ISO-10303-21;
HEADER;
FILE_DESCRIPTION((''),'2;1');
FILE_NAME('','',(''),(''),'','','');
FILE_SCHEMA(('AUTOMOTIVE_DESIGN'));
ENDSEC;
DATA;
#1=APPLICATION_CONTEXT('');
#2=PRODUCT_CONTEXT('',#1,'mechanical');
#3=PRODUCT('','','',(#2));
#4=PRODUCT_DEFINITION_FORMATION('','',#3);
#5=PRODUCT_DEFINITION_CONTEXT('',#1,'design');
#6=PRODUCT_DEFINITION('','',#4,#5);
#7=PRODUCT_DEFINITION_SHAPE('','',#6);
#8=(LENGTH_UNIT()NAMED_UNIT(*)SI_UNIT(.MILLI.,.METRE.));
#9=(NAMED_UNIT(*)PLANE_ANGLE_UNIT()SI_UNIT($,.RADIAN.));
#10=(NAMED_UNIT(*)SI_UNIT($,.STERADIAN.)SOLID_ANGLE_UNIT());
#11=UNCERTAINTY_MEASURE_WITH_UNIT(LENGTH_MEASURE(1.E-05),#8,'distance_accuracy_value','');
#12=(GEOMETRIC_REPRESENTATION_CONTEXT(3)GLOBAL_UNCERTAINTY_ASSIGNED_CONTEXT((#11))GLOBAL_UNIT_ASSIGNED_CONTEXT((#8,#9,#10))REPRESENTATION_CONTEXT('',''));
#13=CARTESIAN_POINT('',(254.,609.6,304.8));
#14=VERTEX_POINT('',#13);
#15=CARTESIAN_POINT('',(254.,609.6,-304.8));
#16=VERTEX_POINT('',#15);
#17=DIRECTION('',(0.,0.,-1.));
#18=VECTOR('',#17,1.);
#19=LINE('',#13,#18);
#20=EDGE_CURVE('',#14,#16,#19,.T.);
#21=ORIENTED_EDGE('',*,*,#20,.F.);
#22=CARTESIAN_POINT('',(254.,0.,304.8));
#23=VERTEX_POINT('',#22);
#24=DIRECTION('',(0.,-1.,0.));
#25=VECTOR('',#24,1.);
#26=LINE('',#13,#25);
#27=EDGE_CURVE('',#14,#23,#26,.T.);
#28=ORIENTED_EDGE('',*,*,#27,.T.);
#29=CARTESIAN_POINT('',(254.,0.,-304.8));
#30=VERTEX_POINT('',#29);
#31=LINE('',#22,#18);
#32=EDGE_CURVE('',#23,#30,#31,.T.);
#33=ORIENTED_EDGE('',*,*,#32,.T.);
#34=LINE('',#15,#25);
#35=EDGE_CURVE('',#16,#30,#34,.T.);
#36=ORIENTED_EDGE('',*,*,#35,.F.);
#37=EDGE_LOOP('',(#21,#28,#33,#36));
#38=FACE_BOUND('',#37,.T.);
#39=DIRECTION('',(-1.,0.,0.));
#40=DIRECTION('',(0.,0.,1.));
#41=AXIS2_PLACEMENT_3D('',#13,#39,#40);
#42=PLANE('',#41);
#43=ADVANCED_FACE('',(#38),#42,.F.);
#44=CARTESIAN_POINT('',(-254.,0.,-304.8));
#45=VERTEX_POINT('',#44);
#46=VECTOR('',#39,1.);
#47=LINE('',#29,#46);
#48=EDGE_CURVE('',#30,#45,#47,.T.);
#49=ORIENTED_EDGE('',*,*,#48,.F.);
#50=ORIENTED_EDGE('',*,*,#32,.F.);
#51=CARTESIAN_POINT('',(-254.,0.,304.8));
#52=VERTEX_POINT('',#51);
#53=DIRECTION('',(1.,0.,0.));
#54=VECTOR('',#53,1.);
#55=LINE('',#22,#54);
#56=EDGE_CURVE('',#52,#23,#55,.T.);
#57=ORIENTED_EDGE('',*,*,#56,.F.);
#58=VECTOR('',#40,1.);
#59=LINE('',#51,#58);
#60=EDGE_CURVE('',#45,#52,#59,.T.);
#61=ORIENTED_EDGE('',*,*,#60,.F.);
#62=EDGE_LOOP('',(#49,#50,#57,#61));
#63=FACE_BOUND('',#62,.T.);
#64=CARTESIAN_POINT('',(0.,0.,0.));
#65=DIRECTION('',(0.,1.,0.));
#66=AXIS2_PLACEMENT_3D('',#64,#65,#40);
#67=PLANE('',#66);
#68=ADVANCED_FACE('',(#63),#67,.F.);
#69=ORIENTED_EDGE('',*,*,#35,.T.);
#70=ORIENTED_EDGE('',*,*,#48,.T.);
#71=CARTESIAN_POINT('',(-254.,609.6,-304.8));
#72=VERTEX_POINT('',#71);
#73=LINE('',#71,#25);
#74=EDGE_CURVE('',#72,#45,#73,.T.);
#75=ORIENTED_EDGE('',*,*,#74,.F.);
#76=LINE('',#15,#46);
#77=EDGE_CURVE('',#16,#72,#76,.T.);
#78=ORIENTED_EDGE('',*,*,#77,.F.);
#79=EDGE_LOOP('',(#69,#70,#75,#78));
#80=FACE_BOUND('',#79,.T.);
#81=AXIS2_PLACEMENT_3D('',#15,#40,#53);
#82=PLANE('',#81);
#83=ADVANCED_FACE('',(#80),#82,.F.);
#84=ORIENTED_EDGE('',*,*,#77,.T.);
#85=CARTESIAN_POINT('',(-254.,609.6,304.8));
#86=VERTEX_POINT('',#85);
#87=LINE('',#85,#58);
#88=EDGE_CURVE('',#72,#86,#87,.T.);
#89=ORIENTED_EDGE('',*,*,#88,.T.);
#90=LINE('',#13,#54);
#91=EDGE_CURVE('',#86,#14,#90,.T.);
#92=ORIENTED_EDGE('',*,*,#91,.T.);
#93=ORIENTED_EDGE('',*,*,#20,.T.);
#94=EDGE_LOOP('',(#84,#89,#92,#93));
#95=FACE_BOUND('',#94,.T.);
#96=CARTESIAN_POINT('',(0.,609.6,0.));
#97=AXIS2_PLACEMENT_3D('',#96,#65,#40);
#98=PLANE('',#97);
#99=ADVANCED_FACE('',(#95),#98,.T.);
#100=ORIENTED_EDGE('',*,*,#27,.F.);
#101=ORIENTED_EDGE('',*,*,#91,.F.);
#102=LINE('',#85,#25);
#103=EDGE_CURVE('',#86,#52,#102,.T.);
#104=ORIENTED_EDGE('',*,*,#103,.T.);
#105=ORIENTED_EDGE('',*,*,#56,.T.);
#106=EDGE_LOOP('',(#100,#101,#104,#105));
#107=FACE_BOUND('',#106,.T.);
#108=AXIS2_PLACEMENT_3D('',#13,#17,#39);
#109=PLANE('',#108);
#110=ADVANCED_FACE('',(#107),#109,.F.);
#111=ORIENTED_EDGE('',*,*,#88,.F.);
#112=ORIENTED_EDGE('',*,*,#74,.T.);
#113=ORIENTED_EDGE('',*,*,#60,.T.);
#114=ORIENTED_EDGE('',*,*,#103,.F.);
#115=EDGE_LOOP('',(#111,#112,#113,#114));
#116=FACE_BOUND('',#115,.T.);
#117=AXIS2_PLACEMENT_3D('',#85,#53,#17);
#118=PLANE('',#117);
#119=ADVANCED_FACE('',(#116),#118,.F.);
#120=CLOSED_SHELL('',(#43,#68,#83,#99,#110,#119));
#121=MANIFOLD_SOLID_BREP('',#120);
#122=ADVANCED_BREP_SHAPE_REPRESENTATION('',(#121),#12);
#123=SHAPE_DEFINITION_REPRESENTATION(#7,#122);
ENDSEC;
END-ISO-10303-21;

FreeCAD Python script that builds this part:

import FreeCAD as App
import Part
import Sketcher

V = App.Vector
Q = App.Units.Quantity

doc = App.newDocument("Part")
params = doc.addObject("Spreadsheet::Sheet", "Params")
for row, (alias, value) in enumerate([
    ("sketch1_width", "20 in"),
    ("sketch1_height", "24 in"),
    ("pad1_length", "24 in"),
], start=1):
    params.set(f"A{row}", alias)
    params.set(f"B{row}", "=" + value)
    params.setAlias(f"B{row}", alias)

body = doc.addObject("PartDesign::Body", "Body")

# Sketch on XZ plane
sketch1 = doc.addObject("Sketcher::SketchObject", "Sketch")
body.addObject(sketch1)
sketch1.AttachmentSupport = (doc.XZ_Plane, [""])
sketch1.MapMode = "FlatFace"
sketch1.addGeometry(Part.LineSegment(V(-254, -305, 0), V(-254, 305, 0)), False)
sketch1.addGeometry(Part.LineSegment(V(-254, 305, 0), V(254, 305, 0)), False)
sketch1.addGeometry(Part.LineSegment(V(254, 305, 0), V(254, -305, 0)), False)
sketch1.addGeometry(Part.LineSegment(V(254, -305, 0), V(-254, -305, 0)), False)
sketch1.addConstraint(Sketcher.Constraint("Coincident", 0, 2, 1, 1))
sketch1.addConstraint(Sketcher.Constraint("Coincident", 1, 2, 2, 1))
sketch1.addConstraint(Sketcher.Constraint("Coincident", 2, 2, 3, 1))
sketch1.addConstraint(Sketcher.Constraint("Coincident", 3, 2, 0, 1))
sketch1.addConstraint(Sketcher.Constraint("Vertical", 0))
sketch1.addConstraint(Sketcher.Constraint("Horizontal", 1))
sketch1.addConstraint(Sketcher.Constraint("Vertical", 2))
sketch1.addConstraint(Sketcher.Constraint("Horizontal", 3))
sketch1.addConstraint(Sketcher.Constraint("Symmetric", 0, 2, 2, 2, -1, 1))
sketch1.addConstraint(Sketcher.Constraint("DistanceX", 1, 1, 1, 2, Q("20 in")))
sketch1.addConstraint(Sketcher.Constraint("DistanceY", 0, 1, 0, 2, Q("24 in")))
sketch1.setExpression("Constraints[9]", "Params.sketch1_width")
sketch1.setExpression("Constraints[10]", "Params.sketch1_height")
pad1 = doc.addObject("PartDesign::Pad", "Pad")
body.addObject(pad1)
pad1.Profile = sketch1
pad1.setExpression("Length", "Params.pad1_length")
pad1.Reversed = True

doc.recompute()
